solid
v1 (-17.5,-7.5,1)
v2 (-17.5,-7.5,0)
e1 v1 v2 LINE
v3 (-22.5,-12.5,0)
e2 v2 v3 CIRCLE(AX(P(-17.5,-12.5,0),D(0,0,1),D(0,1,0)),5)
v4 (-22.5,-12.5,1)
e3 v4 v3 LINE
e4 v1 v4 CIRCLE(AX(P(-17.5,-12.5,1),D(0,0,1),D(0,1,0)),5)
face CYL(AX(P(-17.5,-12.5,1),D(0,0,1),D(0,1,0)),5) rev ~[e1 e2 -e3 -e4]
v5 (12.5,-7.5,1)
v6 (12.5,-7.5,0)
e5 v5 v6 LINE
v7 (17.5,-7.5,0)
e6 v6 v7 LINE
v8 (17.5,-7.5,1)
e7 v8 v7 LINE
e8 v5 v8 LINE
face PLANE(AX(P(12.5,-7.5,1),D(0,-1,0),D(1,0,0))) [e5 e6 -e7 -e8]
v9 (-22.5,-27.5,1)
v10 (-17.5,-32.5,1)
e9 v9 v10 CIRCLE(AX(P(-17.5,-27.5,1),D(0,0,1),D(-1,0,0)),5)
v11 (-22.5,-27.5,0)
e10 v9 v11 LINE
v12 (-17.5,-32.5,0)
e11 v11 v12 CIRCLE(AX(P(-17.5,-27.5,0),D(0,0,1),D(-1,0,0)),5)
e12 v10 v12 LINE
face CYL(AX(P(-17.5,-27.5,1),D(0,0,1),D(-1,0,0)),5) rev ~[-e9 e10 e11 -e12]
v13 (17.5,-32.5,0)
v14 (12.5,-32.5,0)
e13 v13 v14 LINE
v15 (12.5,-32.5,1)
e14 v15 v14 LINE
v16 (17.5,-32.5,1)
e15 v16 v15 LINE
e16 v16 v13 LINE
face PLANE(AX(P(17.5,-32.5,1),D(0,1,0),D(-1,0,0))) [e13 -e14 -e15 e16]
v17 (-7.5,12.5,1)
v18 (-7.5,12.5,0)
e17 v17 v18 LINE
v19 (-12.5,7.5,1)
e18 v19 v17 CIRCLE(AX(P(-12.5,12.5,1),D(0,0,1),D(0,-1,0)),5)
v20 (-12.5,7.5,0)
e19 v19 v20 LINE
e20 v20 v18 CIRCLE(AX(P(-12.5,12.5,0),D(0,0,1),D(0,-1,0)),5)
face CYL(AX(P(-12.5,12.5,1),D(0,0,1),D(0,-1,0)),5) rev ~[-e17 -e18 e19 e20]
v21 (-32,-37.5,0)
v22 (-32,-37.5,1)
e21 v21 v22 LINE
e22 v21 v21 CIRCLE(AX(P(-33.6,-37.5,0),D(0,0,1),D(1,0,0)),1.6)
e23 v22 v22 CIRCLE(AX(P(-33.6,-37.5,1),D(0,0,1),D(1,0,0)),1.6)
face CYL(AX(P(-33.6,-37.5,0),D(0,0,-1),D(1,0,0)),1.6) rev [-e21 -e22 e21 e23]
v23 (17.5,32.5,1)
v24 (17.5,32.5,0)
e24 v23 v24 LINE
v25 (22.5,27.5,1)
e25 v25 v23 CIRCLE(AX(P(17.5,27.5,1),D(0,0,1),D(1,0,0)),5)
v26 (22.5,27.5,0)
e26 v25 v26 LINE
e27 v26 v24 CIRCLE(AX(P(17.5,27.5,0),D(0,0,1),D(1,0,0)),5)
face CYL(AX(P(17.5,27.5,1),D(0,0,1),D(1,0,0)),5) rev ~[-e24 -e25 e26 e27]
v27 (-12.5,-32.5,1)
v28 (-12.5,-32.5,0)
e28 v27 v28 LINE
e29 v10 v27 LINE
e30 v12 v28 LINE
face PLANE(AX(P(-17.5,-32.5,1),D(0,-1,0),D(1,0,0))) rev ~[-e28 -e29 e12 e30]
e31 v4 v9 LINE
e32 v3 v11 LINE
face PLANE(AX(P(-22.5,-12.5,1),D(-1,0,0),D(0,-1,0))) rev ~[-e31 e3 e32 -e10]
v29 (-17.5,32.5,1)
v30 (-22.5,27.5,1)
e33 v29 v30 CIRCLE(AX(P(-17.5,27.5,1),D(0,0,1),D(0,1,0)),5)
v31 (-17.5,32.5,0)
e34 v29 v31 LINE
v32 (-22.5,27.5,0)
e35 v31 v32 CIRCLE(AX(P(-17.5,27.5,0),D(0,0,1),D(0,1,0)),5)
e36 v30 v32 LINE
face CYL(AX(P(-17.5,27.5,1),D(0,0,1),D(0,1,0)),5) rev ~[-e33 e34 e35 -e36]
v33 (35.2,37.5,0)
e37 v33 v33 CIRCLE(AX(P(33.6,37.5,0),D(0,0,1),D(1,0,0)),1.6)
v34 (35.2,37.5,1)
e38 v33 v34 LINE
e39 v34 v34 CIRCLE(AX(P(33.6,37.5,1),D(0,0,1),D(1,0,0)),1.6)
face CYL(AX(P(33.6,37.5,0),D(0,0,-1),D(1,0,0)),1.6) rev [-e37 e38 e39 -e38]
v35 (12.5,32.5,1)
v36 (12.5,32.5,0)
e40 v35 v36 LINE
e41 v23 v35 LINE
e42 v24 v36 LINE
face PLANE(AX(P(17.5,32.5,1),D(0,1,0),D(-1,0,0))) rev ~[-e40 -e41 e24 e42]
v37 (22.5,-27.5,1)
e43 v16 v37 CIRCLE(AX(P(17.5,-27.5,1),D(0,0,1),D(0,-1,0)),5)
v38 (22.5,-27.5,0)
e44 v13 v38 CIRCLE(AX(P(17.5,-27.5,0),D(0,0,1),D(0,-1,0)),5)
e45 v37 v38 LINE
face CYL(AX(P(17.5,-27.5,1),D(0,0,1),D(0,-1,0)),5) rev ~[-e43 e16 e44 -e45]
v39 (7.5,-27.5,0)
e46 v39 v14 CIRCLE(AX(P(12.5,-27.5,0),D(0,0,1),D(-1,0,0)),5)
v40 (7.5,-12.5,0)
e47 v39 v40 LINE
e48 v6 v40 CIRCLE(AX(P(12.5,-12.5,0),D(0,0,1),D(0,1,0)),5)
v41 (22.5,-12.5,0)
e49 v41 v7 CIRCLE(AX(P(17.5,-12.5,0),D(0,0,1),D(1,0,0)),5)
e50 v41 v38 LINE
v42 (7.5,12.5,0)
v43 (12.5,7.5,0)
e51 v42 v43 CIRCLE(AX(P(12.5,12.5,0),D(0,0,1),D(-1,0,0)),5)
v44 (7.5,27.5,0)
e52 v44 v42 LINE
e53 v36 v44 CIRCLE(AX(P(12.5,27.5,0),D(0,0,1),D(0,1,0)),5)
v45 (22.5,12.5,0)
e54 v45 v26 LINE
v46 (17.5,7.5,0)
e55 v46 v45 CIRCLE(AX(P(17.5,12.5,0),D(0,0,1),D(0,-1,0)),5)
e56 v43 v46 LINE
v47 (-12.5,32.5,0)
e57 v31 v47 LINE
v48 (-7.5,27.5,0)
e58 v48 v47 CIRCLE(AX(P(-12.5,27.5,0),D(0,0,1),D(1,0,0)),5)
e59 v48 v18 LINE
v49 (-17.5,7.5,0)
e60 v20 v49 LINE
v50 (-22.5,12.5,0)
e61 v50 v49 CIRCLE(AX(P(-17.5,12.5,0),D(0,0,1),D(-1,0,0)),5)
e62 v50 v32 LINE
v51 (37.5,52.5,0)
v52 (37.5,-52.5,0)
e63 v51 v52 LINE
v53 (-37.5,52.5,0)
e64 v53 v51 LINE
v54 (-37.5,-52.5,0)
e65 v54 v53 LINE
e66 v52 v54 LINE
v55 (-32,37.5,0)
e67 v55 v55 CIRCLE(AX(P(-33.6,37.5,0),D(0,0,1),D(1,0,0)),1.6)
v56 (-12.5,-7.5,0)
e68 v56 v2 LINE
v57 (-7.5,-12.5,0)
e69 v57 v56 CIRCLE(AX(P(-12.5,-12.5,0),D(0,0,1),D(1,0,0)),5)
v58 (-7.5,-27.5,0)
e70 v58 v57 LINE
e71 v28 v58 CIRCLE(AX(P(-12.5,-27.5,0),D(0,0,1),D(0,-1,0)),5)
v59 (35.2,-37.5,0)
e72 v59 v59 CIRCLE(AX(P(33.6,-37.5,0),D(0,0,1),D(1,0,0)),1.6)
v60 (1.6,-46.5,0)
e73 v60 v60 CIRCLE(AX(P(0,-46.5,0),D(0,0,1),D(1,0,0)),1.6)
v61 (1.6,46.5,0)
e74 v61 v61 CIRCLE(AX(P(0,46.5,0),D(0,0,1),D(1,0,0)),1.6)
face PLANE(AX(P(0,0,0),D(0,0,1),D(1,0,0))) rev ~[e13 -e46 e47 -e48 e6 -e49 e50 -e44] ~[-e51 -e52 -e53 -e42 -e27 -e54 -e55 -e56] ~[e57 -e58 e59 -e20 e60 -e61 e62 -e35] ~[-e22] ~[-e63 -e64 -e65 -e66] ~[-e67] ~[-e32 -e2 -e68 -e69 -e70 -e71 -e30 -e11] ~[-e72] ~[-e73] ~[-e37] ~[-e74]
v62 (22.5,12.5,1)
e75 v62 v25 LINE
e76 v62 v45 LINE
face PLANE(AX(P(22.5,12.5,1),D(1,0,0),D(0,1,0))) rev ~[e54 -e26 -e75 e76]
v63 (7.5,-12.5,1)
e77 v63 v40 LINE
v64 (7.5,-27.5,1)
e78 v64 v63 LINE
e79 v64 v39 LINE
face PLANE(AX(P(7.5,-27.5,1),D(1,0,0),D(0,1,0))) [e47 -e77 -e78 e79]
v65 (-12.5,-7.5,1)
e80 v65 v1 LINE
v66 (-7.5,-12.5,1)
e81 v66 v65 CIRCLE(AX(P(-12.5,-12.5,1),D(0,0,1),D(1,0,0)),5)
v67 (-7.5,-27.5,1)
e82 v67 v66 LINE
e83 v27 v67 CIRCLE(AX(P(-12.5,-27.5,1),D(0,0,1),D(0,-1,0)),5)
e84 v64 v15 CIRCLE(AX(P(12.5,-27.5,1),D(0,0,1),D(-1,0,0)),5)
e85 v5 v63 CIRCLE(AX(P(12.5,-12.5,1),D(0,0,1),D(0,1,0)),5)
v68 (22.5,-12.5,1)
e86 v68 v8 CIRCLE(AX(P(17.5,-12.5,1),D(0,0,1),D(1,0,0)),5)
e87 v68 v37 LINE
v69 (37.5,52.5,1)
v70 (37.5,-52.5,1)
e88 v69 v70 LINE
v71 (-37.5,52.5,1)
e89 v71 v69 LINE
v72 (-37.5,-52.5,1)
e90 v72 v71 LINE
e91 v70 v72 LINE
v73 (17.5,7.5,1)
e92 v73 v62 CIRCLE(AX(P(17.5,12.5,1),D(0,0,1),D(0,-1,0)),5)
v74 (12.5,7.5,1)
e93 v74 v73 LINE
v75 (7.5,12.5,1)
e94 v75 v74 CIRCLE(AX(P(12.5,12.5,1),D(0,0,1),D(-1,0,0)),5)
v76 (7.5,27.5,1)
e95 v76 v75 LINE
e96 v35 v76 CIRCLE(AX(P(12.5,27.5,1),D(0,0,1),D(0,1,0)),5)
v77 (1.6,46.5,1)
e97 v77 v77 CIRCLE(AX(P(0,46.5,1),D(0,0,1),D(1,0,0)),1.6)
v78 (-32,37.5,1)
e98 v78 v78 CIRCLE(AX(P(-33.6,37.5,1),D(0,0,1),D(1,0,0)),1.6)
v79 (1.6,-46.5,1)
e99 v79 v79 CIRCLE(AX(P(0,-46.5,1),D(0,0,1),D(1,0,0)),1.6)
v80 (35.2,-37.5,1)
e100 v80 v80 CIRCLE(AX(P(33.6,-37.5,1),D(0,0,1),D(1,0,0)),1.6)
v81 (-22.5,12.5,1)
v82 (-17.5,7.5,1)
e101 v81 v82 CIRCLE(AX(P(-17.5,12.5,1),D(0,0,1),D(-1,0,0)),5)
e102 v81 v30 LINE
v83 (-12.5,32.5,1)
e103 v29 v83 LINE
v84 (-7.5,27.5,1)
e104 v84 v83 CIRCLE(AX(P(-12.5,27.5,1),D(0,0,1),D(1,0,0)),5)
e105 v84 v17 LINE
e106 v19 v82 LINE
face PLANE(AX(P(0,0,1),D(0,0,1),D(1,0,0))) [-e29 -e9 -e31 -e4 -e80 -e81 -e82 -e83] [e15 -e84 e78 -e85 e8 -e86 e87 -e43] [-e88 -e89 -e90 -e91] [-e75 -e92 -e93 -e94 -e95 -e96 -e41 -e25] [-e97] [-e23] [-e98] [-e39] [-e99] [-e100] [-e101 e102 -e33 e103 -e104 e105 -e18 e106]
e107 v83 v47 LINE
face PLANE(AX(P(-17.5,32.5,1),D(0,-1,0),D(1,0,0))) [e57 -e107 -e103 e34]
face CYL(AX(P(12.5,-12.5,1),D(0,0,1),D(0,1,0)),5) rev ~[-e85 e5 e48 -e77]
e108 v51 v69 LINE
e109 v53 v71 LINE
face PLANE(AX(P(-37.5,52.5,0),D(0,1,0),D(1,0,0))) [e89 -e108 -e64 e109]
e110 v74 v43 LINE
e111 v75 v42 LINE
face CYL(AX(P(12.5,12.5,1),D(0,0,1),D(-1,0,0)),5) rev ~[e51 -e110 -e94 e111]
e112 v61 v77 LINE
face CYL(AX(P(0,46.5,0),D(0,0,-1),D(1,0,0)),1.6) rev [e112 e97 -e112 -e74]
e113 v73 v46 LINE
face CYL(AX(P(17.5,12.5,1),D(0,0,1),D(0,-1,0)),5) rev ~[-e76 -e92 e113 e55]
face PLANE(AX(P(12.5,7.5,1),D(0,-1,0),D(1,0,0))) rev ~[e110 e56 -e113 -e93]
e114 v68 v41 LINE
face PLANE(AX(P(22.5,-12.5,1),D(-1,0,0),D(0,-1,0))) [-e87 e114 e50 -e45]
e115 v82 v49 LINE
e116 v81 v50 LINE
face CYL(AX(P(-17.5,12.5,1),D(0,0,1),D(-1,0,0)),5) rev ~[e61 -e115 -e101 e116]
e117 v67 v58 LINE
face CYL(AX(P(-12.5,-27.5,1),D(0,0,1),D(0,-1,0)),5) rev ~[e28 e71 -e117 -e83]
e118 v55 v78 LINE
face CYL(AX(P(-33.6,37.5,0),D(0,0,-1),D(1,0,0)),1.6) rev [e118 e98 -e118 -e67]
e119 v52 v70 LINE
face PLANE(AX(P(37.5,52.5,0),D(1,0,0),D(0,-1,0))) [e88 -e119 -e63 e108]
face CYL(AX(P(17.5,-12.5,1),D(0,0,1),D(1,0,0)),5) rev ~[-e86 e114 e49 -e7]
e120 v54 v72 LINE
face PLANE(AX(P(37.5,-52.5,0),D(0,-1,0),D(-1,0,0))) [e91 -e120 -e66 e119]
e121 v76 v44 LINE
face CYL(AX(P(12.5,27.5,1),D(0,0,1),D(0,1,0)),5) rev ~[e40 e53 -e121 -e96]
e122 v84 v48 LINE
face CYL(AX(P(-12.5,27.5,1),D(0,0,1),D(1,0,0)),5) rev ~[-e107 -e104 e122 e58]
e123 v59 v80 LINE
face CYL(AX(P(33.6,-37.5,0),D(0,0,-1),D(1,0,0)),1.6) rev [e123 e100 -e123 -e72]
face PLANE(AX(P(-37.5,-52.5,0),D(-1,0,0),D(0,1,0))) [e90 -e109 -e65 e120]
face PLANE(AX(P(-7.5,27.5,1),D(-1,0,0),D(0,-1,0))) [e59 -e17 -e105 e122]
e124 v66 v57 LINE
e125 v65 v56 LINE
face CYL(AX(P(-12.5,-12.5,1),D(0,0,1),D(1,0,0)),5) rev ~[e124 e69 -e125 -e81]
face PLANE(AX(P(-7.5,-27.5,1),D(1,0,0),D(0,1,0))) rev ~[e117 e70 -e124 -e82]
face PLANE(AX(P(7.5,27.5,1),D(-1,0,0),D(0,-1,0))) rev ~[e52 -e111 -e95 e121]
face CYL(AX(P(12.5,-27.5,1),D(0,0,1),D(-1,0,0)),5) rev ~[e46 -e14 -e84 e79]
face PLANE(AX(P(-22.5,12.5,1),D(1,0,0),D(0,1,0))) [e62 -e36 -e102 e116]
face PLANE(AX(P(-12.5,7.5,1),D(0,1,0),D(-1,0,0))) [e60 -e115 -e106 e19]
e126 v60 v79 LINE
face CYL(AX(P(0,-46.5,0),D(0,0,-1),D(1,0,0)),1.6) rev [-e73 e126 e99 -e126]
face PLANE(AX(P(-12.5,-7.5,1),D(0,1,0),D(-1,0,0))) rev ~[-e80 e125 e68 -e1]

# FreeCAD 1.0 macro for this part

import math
import FreeCAD as App
import Part
import Sketcher
from FreeCAD import Vector
Q = App.Units.Quantity


def add_polygon(sketch, points):
    """Adds a closed chain of lines whose ends are joined by coincident constraints."""
    first, n = sketch.GeometryCount, len(points)
    for a, b in zip(points, points[1:] + points[:1]):
        sketch.addGeometry(Part.LineSegment(App.Vector(*a, 0), App.Vector(*b, 0)), False)
    for i in range(n):
        sketch.addConstraint(Sketcher.Constraint("Coincident", first + i, 2, first + (i + 1) % n, 1))

doc = App.newDocument("Part")
body = doc.addObject("PartDesign::Body", "Body")

# Sketch on XY plane
sketch1 = doc.addObject("Sketcher::SketchObject", "Sketch")
body.addObject(sketch1)
sketch1.AttachmentSupport = (doc.XY_Plane, [""])
sketch1.MapMode = "FlatFace"
add_polygon(sketch1, [(37.5, 52.5), (-37.5, 52.5), (-37.5, -52.5), (37.5, -52.5)])  # lines 0-3
sketch1.addGeometry(Part.Circle(Vector(-33.6, -37.5, 0), Vector(0, 0, 1), 1.6), False)  # 4
sketch1.addGeometry(Part.Circle(Vector(0, -46.5, 0), Vector(0, 0, 1), 1.6), False)  # 5
sketch1.addGeometry(Part.Circle(Vector(33.6, -37.5, 0), Vector(0, 0, 1), 1.6), False)  # 6
sketch1.addGeometry(Part.Circle(Vector(-33.6, 37.5, 0), Vector(0, 0, 1), 1.6), False)  # 7
sketch1.addGeometry(Part.Circle(Vector(0, 46.5, 0), Vector(0, 0, 1), 1.6), False)  # 8
sketch1.addGeometry(Part.Circle(Vector(33.6, 37.5, 0), Vector(0, 0, 1), 1.6), False)  # 9
sketch1.addConstraint(Sketcher.Constraint("Horizontal", 0))
sketch1.addConstraint(Sketcher.Constraint("Vertical", 1))
sketch1.addConstraint(Sketcher.Constraint("Horizontal", 2))
sketch1.addConstraint(Sketcher.Constraint("Vertical", 3))
sketch1.addConstraint(Sketcher.Constraint("Equal", 4, 5))
sketch1.addConstraint(Sketcher.Constraint("Equal", 5, 6))
sketch1.addConstraint(Sketcher.Constraint("Equal", 6, 7))
sketch1.addConstraint(Sketcher.Constraint("Equal", 7, 8))
sketch1.addConstraint(Sketcher.Constraint("Equal", 8, 9))
sketch1.addConstraint(Sketcher.Constraint("Symmetric", 6, 3, 7, 3, -1, 1))
sketch1.addConstraint(Sketcher.Constraint("Symmetric", 5, 3, 8, 3, -1, 1))
sketch1.addConstraint(Sketcher.Constraint("Symmetric", 4, 3, 9, 3, -1, 1))
sketch1.addConstraint(Sketcher.Constraint("Symmetric", 0, 2, 2, 2, -1, 1))
sketch1.addConstraint(Sketcher.Constraint("Symmetric", 4, 3, 6, 3, -2))
sketch1.addConstraint(Sketcher.Constraint("PointOnObject", 5, 3, -2))
sketch1.addConstraint(Sketcher.Constraint("Diameter", 4, Q("3.2 mm")))
sketch1.addConstraint(Sketcher.Constraint("DistanceX", 0, 2, 0, 1, Q("75 mm")))
sketch1.addConstraint(Sketcher.Constraint("DistanceY", 1, 2, 1, 1, Q("105 mm")))
sketch1.addConstraint(Sketcher.Constraint("DistanceY", 4, 3, 7, 3, Q("75 mm")))
sketch1.addConstraint(Sketcher.Constraint("DistanceY", 8, 3, 0, 2, Q("6 mm")))
sketch1.addConstraint(Sketcher.Constraint("DistanceX", 0, 2, 7, 3, Q("3.9 mm")))
pad1 = doc.addObject("PartDesign::Pad", "Pad")
body.addObject(pad1)
pad1.Profile = sketch1
pad1.Length = 1

# Sketch on XY plane
sketch2 = doc.addObject("Sketcher::SketchObject", "Sketch001")
body.addObject(sketch2)
sketch2.AttachmentSupport = (doc.XY_Plane, [""])
sketch2.MapMode = "FlatFace"
sketch2.AttachmentOffset = App.Placement(Vector(0, 0, 1), App.Rotation())
sketch2.addGeometry(Part.LineSegment(Vector(-12, 32, 0), Vector(-18, 32, 0)), False)
sketch2.addGeometry(Part.ArcOfCircle(Part.Circle(Vector(-18, 28, 0), Vector(0, 0, 1), 5), math.radians(90), math.radians(180)), False)
sketch2.addGeometry(Part.LineSegment(Vector(-22, 28, 0), Vector(-22, 12, 0)), False)
sketch2.addGeometry(Part.ArcOfCircle(Part.Circle(Vector(-18, 12, 0), Vector(0, 0, 1), 5), math.radians(180), math.radians(270)), False)
sketch2.addGeometry(Part.LineSegment(Vector(-18, 8, 0), Vector(-12, 8, 0)), False)
sketch2.addGeometry(Part.ArcOfCircle(Part.Circle(Vector(-12, 12, 0), Vector(0, 0, 1), 5), math.radians(-90), math.radians(0)), False)
sketch2.addGeometry(Part.LineSegment(Vector(-8, 12, 0), Vector(-8, 28, 0)), False)
sketch2.addGeometry(Part.ArcOfCircle(Part.Circle(Vector(-12, 28, 0), Vector(0, 0, 1), 5), math.radians(0), math.radians(90)), False)
sketch2.addGeometry(Part.ArcOfCircle(Part.Circle(Vector(18, 28, 0), Vector(0, 0, 1), 5), math.radians(0), math.radians(90)), False)
sketch2.addGeometry(Part.LineSegment(Vector(18, 32, 0), Vector(12, 32, 0)), False)
sketch2.addGeometry(Part.ArcOfCircle(Part.Circle(Vector(12, 28, 0), Vector(0, 0, 1), 5), math.radians(90), math.radians(180)), False)
sketch2.addGeometry(Part.LineSegment(Vector(8, 28, 0), Vector(8, 12, 0)), False)
sketch2.addGeometry(Part.ArcOfCircle(Part.Circle(Vector(12, 12, 0), Vector(0, 0, 1), 5), math.radians(180), math.radians(270)), False)
sketch2.addGeometry(Part.LineSegment(Vector(12, 8, 0), Vector(18, 8, 0)), False)
sketch2.addGeometry(Part.ArcOfCircle(Part.Circle(Vector(18, 12, 0), Vector(0, 0, 1), 5), math.radians(-90), math.radians(0)), False)
sketch2.addGeometry(Part.LineSegment(Vector(22, 12, 0), Vector(22, 28, 0)), False)
sketch2.addGeometry(Part.ArcOfCircle(Part.Circle(Vector(-18, -28, 0), Vector(0, 0, 1), 5), math.radians(180), math.radians(270)), False)
sketch2.addGeometry(Part.LineSegment(Vector(-18, -32, 0), Vector(-12, -32, 0)), False)
sketch2.addGeometry(Part.ArcOfCircle(Part.Circle(Vector(-12, -28, 0), Vector(0, 0, 1), 5), math.radians(-90), math.radians(0)), False)
sketch2.addGeometry(Part.LineSegment(Vector(-8, -28, 0), Vector(-8, -12, 0)), False)
sketch2.addGeometry(Part.ArcOfCircle(Part.Circle(Vector(-12, -12, 0), Vector(0, 0, 1), 5), math.radians(0), math.radians(90)), False)
sketch2.addGeometry(Part.LineSegment(Vector(-12, -8, 0), Vector(-18, -8, 0)), False)
sketch2.addGeometry(Part.ArcOfCircle(Part.Circle(Vector(-18, -12, 0), Vector(0, 0, 1), 5), math.radians(90), math.radians(180)), False)
sketch2.addGeometry(Part.LineSegment(Vector(-22, -12, 0), Vector(-22, -28, 0)), False)
sketch2.addGeometry(Part.LineSegment(Vector(18, -8, 0), Vector(12, -8, 0)), False)
sketch2.addGeometry(Part.ArcOfCircle(Part.Circle(Vector(12, -12, 0), Vector(0, 0, 1), 5), math.radians(90), math.radians(180)), False)
sketch2.addGeometry(Part.LineSegment(Vector(8, -12, 0), Vector(8, -28, 0)), False)
sketch2.addGeometry(Part.ArcOfCircle(Part.Circle(Vector(12, -28, 0), Vector(0, 0, 1), 5), math.radians(180), math.radians(270)), False)
sketch2.addGeometry(Part.LineSegment(Vector(12, -32, 0), Vector(18, -32, 0)), False)
sketch2.addGeometry(Part.ArcOfCircle(Part.Circle(Vector(18, -28, 0), Vector(0, 0, 1), 5), math.radians(-90), math.radians(0)), False)
sketch2.addGeometry(Part.LineSegment(Vector(22, -28, 0), Vector(22, -12, 0)), False)
sketch2.addGeometry(Part.ArcOfCircle(Part.Circle(Vector(18, -12, 0), Vector(0, 0, 1), 5), math.radians(0), math.radians(90)), False)
sketch2.addConstraint(Sketcher.Constraint("Tangent", 0, 2, 1, 1))
sketch2.addConstraint(Sketcher.Constraint("Tangent", 1, 2, 2, 1))
sketch2.addConstraint(Sketcher.Constraint("Tangent", 2, 2, 3, 1))
sketch2.addConstraint(Sketcher.Constraint("Tangent", 3, 2, 4, 1))
sketch2.addConstraint(Sketcher.Constraint("Tangent", 4, 2, 5, 1))
sketch2.addConstraint(Sketcher.Constraint("Tangent", 5, 2, 6, 1))
sketch2.addConstraint(Sketcher.Constraint("Tangent", 6, 2, 7, 1))
sketch2.addConstraint(Sketcher.Constraint("Tangent", 7, 2, 0, 1))
sketch2.addConstraint(Sketcher.Constraint("Tangent", 8, 2, 9, 1))
sketch2.addConstraint(Sketcher.Constraint("Tangent", 9, 2, 10, 1))
sketch2.addConstraint(Sketcher.Constraint("Tangent", 10, 2, 11, 1))
sketch2.addConstraint(Sketcher.Constraint("Tangent", 11, 2, 12, 1))
sketch2.addConstraint(Sketcher.Constraint("Tangent", 12, 2, 13, 1))
sketch2.addConstraint(Sketcher.Constraint("Tangent", 13, 2, 14, 1))
sketch2.addConstraint(Sketcher.Constraint("Tangent", 14, 2, 15, 1))
sketch2.addConstraint(Sketcher.Constraint("Tangent", 15, 2, 8, 1))
sketch2.addConstraint(Sketcher.Constraint("Tangent", 16, 2, 17, 1))
sketch2.addConstraint(Sketcher.Constraint("Tangent", 17, 2, 18, 1))
sketch2.addConstraint(Sketcher.Constraint("Tangent", 18, 2, 19, 1))
sketch2.addConstraint(Sketcher.Constraint("Tangent", 19, 2, 20, 1))
sketch2.addConstraint(Sketcher.Constraint("Tangent", 20, 2, 21, 1))
sketch2.addConstraint(Sketcher.Constraint("Tangent", 21, 2, 22, 1))
sketch2.addConstraint(Sketcher.Constraint("Tangent", 22, 2, 23, 1))
sketch2.addConstraint(Sketcher.Constraint("Tangent", 23, 2, 16, 1))
sketch2.addConstraint(Sketcher.Constraint("Tangent", 24, 2, 25, 1))
sketch2.addConstraint(Sketcher.Constraint("Tangent", 25, 2, 26, 1))
sketch2.addConstraint(Sketcher.Constraint("Tangent", 26, 2, 27, 1))
sketch2.addConstraint(Sketcher.Constraint("Tangent", 27, 2, 28, 1))
sketch2.addConstraint(Sketcher.Constraint("Tangent", 28, 2, 29, 1))
sketch2.addConstraint(Sketcher.Constraint("Tangent", 29, 2, 30, 1))
sketch2.addConstraint(Sketcher.Constraint("Tangent", 30, 2, 31, 1))
sketch2.addConstraint(Sketcher.Constraint("Tangent", 31, 2, 24, 1))
sketch2.addConstraint(Sketcher.Constraint("Horizontal", 0))
sketch2.addConstraint(Sketcher.Constraint("Vertical", 2))
sketch2.addConstraint(Sketcher.Constraint("Horizontal", 4))
sketch2.addConstraint(Sketcher.Constraint("Vertical", 6))
sketch2.addConstraint(Sketcher.Constraint("Horizontal", 9))
sketch2.addConstraint(Sketcher.Constraint("Vertical", 11))
sketch2.addConstraint(Sketcher.Constraint("Horizontal", 13))
sketch2.addConstraint(Sketcher.Constraint("Vertical", 15))
sketch2.addConstraint(Sketcher.Constraint("Horizontal", 17))
sketch2.addConstraint(Sketcher.Constraint("Vertical", 19))
sketch2.addConstraint(Sketcher.Constraint("Horizontal", 21))
sketch2.addConstraint(Sketcher.Constraint("Vertical", 23))
sketch2.addConstraint(Sketcher.Constraint("Horizontal", 24))
sketch2.addConstraint(Sketcher.Constraint("Vertical", 26))
sketch2.addConstraint(Sketcher.Constraint("Horizontal", 28))
sketch2.addConstraint(Sketcher.Constraint("Vertical", 30))
sketch2.addConstraint(Sketcher.Constraint("Equal", 1, 3))
sketch2.addConstraint(Sketcher.Constraint("Equal", 3, 5))
sketch2.addConstraint(Sketcher.Constraint("Equal", 5, 7))
sketch2.addConstraint(Sketcher.Constraint("Equal", 7, 8))
sketch2.addConstraint(Sketcher.Constraint("Equal", 8, 10))
sketch2.addConstraint(Sketcher.Constraint("Equal", 10, 12))
sketch2.addConstraint(Sketcher.Constraint("Equal", 12, 14))
sketch2.addConstraint(Sketcher.Constraint("Equal", 14, 16))
sketch2.addConstraint(Sketcher.Constraint("Equal", 16, 18))
sketch2.addConstraint(Sketcher.Constraint("Equal", 18, 20))
sketch2.addConstraint(Sketcher.Constraint("Equal", 20, 22))
sketch2.addConstraint(Sketcher.Constraint("Equal", 22, 25))
sketch2.addConstraint(Sketcher.Constraint("Equal", 25, 27))
sketch2.addConstraint(Sketcher.Constraint("Equal", 27, 29))
sketch2.addConstraint(Sketcher.Constraint("Equal", 29, 31))
sketch2.addConstraint(Sketcher.Constraint("Symmetric", 8, 3, 16, 3, -1, 1))
sketch2.addConstraint(Sketcher.Constraint("Symmetric", 12, 3, 20, 3, -1, 1))
sketch2.addConstraint(Sketcher.Constraint("Symmetric", 5, 3, 25, 3, -1, 1))
sketch2.addConstraint(Sketcher.Constraint("Symmetric", 1, 3, 29, 3, -1, 1))
sketch2.addConstraint(Sketcher.Constraint("Symmetric", 1, 3, 8, 3, -2))
sketch2.addConstraint(Sketcher.Constraint("Symmetric", 5, 3, 12, 3, -2))
sketch2.addConstraint(Sketcher.Constraint("Radius", 1, Q("5 mm")))
sketch2.addConstraint(Sketcher.Constraint("DistanceX", 0, 2, 0, 1, Q("5 mm")))
sketch2.addConstraint(Sketcher.Constraint("DistanceY", 2, 2, 2, 1, Q("15 mm")))
sketch2.addConstraint(Sketcher.Constraint("DistanceX", 7, 3, 10, 3, Q("25 mm")))
sketch2.addConstraint(Sketcher.Constraint("DistanceY", 20, 3, 5, 3, Q("25 mm")))
pocket1 = doc.addObject("PartDesign::Pocket", "Pocket")
body.addObject(pocket1)
pocket1.Profile = sketch2
pocket1.Length = 1

doc.recompute()
